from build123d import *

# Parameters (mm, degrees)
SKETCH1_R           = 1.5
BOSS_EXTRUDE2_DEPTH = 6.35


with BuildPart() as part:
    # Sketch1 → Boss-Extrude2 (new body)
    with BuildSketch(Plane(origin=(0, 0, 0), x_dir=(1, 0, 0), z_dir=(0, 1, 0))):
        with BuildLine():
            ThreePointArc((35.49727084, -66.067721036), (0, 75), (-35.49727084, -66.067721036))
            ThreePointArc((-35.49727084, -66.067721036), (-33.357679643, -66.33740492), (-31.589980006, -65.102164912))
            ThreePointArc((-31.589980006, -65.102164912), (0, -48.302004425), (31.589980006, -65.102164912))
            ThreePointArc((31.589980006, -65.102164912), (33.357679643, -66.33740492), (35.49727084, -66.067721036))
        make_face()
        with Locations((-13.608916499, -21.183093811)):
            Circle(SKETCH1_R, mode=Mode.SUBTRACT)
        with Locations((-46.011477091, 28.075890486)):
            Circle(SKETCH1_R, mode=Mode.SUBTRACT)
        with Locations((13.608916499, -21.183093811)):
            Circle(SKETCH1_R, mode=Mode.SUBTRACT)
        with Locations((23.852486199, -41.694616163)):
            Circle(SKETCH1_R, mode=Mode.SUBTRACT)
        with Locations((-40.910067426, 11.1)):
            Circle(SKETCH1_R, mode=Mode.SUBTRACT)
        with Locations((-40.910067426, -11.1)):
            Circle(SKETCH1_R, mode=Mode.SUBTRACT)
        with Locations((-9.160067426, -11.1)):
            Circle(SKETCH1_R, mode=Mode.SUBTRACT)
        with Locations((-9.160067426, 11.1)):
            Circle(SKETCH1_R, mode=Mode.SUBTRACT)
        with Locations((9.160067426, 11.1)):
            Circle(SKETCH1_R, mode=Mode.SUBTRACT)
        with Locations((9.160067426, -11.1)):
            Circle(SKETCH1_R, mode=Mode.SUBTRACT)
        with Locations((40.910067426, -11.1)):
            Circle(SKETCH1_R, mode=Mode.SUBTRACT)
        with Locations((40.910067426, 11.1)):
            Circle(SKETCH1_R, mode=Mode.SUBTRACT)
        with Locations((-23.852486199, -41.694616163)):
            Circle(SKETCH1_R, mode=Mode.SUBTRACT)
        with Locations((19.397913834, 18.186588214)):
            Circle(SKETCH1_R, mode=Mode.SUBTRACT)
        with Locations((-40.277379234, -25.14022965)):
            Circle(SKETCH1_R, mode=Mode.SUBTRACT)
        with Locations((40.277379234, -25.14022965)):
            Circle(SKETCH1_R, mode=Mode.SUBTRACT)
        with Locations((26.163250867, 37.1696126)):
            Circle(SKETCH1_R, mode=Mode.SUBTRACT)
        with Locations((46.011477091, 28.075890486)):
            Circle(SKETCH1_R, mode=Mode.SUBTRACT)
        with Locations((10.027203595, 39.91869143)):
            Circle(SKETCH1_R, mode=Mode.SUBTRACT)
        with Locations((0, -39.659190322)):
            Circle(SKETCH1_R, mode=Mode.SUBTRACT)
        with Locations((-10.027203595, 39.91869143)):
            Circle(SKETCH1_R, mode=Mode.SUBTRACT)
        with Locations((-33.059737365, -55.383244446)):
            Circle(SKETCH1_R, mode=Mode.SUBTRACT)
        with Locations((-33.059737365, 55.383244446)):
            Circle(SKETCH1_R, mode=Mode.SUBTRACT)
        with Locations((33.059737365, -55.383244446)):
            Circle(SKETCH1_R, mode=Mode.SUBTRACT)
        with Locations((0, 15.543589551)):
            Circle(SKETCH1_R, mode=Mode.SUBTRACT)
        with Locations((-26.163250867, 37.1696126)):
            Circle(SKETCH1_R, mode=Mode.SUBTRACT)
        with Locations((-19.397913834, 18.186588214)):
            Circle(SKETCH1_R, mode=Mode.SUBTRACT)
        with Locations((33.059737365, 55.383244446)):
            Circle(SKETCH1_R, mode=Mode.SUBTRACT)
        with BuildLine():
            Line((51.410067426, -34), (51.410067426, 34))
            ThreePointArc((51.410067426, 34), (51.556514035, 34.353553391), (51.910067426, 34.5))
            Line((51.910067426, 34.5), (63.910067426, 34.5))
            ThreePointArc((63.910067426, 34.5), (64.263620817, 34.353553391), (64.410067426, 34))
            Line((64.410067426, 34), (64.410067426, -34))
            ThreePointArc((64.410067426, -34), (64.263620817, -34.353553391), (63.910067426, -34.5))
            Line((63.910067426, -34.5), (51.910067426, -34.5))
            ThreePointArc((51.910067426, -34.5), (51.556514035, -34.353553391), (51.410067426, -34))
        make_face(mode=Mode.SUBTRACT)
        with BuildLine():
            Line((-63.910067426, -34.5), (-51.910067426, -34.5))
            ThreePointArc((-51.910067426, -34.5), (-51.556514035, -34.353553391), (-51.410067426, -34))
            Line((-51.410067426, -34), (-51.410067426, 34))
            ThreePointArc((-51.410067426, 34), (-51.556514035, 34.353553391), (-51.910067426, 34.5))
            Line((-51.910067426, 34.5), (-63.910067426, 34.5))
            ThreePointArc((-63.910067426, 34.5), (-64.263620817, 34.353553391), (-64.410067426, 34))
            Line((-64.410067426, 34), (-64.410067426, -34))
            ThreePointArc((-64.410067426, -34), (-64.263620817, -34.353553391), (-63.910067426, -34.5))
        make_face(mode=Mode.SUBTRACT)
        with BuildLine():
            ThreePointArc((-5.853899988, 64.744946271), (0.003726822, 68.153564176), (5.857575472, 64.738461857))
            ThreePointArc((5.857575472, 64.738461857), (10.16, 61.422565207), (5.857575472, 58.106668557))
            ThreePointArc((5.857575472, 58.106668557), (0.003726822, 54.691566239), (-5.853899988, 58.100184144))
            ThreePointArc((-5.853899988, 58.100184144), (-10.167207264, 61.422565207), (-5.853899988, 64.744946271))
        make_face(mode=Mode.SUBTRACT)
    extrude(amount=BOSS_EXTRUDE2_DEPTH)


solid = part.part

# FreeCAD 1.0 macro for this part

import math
import FreeCAD as App
import Part
import Sketcher
from FreeCAD import Vector

doc = App.newDocument("Part")
body = doc.addObject("PartDesign::Body", "Body")

sketch1 = body.newObject("Sketcher::SketchObject", "Sketch")
sketch1.AttachmentSupport = (doc.getObject("XZ_Plane"), [""])
sketch1.MapMode = "FlatFace"
sketch1.addGeometry([
    Part.ArcOfCircle(Part.Circle(Vector(0, 0, 0), Vector(0, 0, 1), 75), math.radians(118), math.radians(422)),
    Part.ArcOfCircle(Part.Circle(Vector(-34.08, 63.43, 0), Vector(0, 0, 1), 3), math.radians(34), math.radians(118)),
    Part.ArcOfCircle(Part.Circle(Vector(0, 86.4, 0), Vector(0, 0, 1), 38.1), math.radians(-146), math.radians(-34)),
    Part.ArcOfCircle(Part.Circle(Vector(34.08, 63.43, 0), Vector(0, 0, 1), 3), math.radians(62), math.radians(146)),
    Part.Circle(Vector(-33.06, 55.38, 0), Vector(0, 0, 1), 1.5),
    Part.Circle(Vector(-23.85, 41.69, 0), Vector(0, 0, 1), 1.5),
    Part.Circle(Vector(-40.28, 25.14, 0), Vector(0, 0, 1), 1.5),
    Part.Circle(Vector(-40.91, 11.1, 0), Vector(0, 0, 1), 1.5),
    Part.LineSegment(Vector(-51.91, 34.5, 0), Vector(-63.91, 34.5, 0)),
    Part.ArcOfCircle(Part.Circle(Vector(-63.91, 34, 0), Vector(0, 0, 1), 0.5), math.radians(90), math.radians(180)),
    Part.LineSegment(Vector(-64.41, 34, 0), Vector(-64.41, -34, 0)),
    Part.ArcOfCircle(Part.Circle(Vector(-63.91, -34, 0), Vector(0, 0, 1), 0.5), math.radians(180), math.radians(270)),
    Part.LineSegment(Vector(-63.91, -34.5, 0), Vector(-51.91, -34.5, 0)),
    Part.ArcOfCircle(Part.Circle(Vector(-51.91, -34, 0), Vector(0, 0, 1), 0.5), math.radians(-90), math.radians(0)),
    Part.LineSegment(Vector(-51.41, -34, 0), Vector(-51.41, 34, 0)),
    Part.ArcOfCircle(Part.Circle(Vector(-51.91, 34, 0), Vector(0, 0, 1), 0.5), math.radians(0), math.radians(90)),
    Part.Circle(Vector(-13.61, 21.18, 0), Vector(0, 0, 1), 1.5),
    Part.Circle(Vector(-9.16, 11.1, 0), Vector(0, 0, 1), 1.5),
    Part.Circle(Vector(23.85, 41.69, 0), Vector(0, 0, 1), 1.5),
    Part.Circle(Vector(0, 39.66, 0), Vector(0, 0, 1), 1.5),
    Part.Circle(Vector(33.06, 55.38, 0), Vector(0, 0, 1), 1.5),
    Part.Circle(Vector(13.61, 21.18, 0), Vector(0, 0, 1), 1.5),
    Part.Circle(Vector(9.16, 11.1, 0), Vector(0, 0, 1), 1.5),
    Part.Circle(Vector(40.28, 25.14, 0), Vector(0, 0, 1), 1.5),
    Part.Circle(Vector(40.91, 11.1, 0), Vector(0, 0, 1), 1.5),
    Part.ArcOfCircle(Part.Circle(Vector(51.91, 34, 0), Vector(0, 0, 1), 0.5), math.radians(90), math.radians(180)),
    Part.LineSegment(Vector(51.41, 34, 0), Vector(51.41, -34, 0)),
    Part.ArcOfCircle(Part.Circle(Vector(51.91, -34, 0), Vector(0, 0, 1), 0.5), math.radians(180), math.radians(270)),
    Part.LineSegment(Vector(51.91, -34.5, 0), Vector(63.91, -34.5, 0)),
    Part.ArcOfCircle(Part.Circle(Vector(63.91, -34, 0), Vector(0, 0, 1), 0.5), math.radians(-90), math.radians(0)),
    Part.LineSegment(Vector(64.41, -34, 0), Vector(64.41, 34, 0)),
    Part.ArcOfCircle(Part.Circle(Vector(63.91, 34, 0), Vector(0, 0, 1), 0.5), math.radians(0), math.radians(90)),
    Part.LineSegment(Vector(63.91, 34.5, 0), Vector(51.91, 34.5, 0)),
    Part.Circle(Vector(-40.91, -11.1, 0), Vector(0, 0, 1), 1.5),
    Part.Circle(Vector(-46.01, -28.08, 0), Vector(0, 0, 1), 1.5),
    Part.Circle(Vector(-19.4, -18.19, 0), Vector(0, 0, 1), 1.5),
    Part.Circle(Vector(-9.16, -11.1, 0), Vector(0, 0, 1), 1.5),
    Part.Circle(Vector(-33.06, -55.38, 0), Vector(0, 0, 1), 1.5),
    Part.Circle(Vector(-26.16, -37.17, 0), Vector(0, 0, 1), 1.5),
    Part.Circle(Vector(-10.03, -39.92, 0), Vector(0, 0, 1), 1.5),
    Part.ArcOfCircle(Part.Circle(Vector(-6.73, -61.42, 0), Vector(0, 0, 1), 3.44), math.radians(75), math.radians(285)),
    Part.ArcOfCircle(Part.Circle(Vector(0, -61.42, 0), Vector(0, 0, 1), 6.73), math.radians(-150), math.radians(-30)),
    Part.ArcOfCircle(Part.Circle(Vector(6.73, -61.42, 0), Vector(0, 0, 1), 3.43), math.radians(-105), math.radians(105)),
    Part.ArcOfCircle(Part.Circle(Vector(0, -61.42, 0), Vector(0, 0, 1), 6.73), math.radians(30), math.radians(150)),
    Part.Circle(Vector(9.16, -11.1, 0), Vector(0, 0, 1), 1.5),
    Part.Circle(Vector(0, -15.54, 0), Vector(0, 0, 1), 1.5),
    Part.Circle(Vector(19.4, -18.19, 0), Vector(0, 0, 1), 1.5),
    Part.Circle(Vector(40.91, -11.1, 0), Vector(0, 0, 1), 1.5),
    Part.Circle(Vector(46.01, -28.08, 0), Vector(0, 0, 1), 1.5),
    Part.Circle(Vector(10.03, -39.92, 0), Vector(0, 0, 1), 1.5),
    Part.Circle(Vector(26.16, -37.17, 0), Vector(0, 0, 1), 1.5),
    Part.Circle(Vector(33.06, -55.38, 0), Vector(0, 0, 1), 1.5),
], False)
sketch1.addConstraint([
    Sketcher.Constraint("Tangent", 0, 1, 1, 2),
    Sketcher.Constraint("Tangent", 1, 1, 2, 1),
    Sketcher.Constraint("Tangent", 2, 2, 3, 2),
    Sketcher.Constraint("Tangent", 3, 1, 0, 2),
    Sketcher.Constraint("Tangent", 8, 2, 9, 1),
    Sketcher.Constraint("Tangent", 9, 2, 10, 1),
    Sketcher.Constraint("Tangent", 10, 2, 11, 1),
    Sketcher.Constraint("Tangent", 11, 2, 12, 1),
    Sketcher.Constraint("Tangent", 12, 2, 13, 1),
    Sketcher.Constraint("Tangent", 13, 2, 14, 1),
    Sketcher.Constraint("Tangent", 14, 2, 15, 1),
    Sketcher.Constraint("Tangent", 15, 2, 8, 1),
    Sketcher.Constraint("Tangent", 25, 2, 26, 1),
    Sketcher.Constraint("Tangent", 26, 2, 27, 1),
    Sketcher.Constraint("Tangent", 27, 2, 28, 1),
    Sketcher.Constraint("Tangent", 28, 2, 29, 1),
    Sketcher.Constraint("Tangent", 29, 2, 30, 1),
    Sketcher.Constraint("Tangent", 30, 2, 31, 1),
    Sketcher.Constraint("Tangent", 31, 2, 32, 1),
    Sketcher.Constraint("Tangent", 32, 2, 25, 1),
    Sketcher.Constraint("Coincident", 40, 2, 41, 1),
    Sketcher.Constraint("Coincident", 41, 2, 42, 1),
    Sketcher.Constraint("Coincident", 42, 2, 43, 1),
    Sketcher.Constraint("Coincident", 43, 2, 40, 1),
    Sketcher.Constraint("Horizontal", 8),
    Sketcher.Constraint("Vertical", 10),
    Sketcher.Constraint("Horizontal", 12),
    Sketcher.Constraint("Vertical", 14),
    Sketcher.Constraint("Vertical", 26),
    Sketcher.Constraint("Horizontal", 28),
    Sketcher.Constraint("Vertical", 30),
    Sketcher.Constraint("Horizontal", 32),
    Sketcher.Constraint("Coincident", 0, 3, -1, 1),
    Sketcher.Constraint("Coincident", 43, 3, 41, 3),
    Sketcher.Constraint("Equal", 1, 3),
    Sketcher.Constraint("Equal", 4, 5),
    Sketcher.Constraint("Equal", 5, 6),
    Sketcher.Constraint("Equal", 6, 7),
    Sketcher.Constraint("Equal", 9, 11),
    Sketcher.Constraint("Equal", 11, 13),
    Sketcher.Constraint("Equal", 13, 15),
    Sketcher.Constraint("Equal", 7, 16),
    Sketcher.Constraint("Equal", 16, 17),
    Sketcher.Constraint("Equal", 17, 18),
    Sketcher.Constraint("Equal", 18, 19),
    Sketcher.Constraint("Equal", 19, 20),
    Sketcher.Constraint("Equal", 20, 21),
    Sketcher.Constraint("Equal", 21, 22),
    Sketcher.Constraint("Equal", 22, 23),
    Sketcher.Constraint("Equal", 23, 24),
    Sketcher.Constraint("Equal", 15, 25),
    Sketcher.Constraint("Equal", 25, 27),
    Sketcher.Constraint("Equal", 27, 29),
    Sketcher.Constraint("Equal", 29, 31),
    Sketcher.Constraint("Equal", 24, 33),
    Sketcher.Constraint("Equal", 33, 34),
    Sketcher.Constraint("Equal", 34, 35),
    Sketcher.Constraint("Equal", 35, 36),
    Sketcher.Constraint("Equal", 36, 37),
    Sketcher.Constraint("Equal", 37, 38),
    Sketcher.Constraint("Equal", 38, 39),
    Sketcher.Constraint("Equal", 41, 43),
    Sketcher.Constraint("Equal", 39, 44),
    Sketcher.Constraint("Equal", 44, 45),
    Sketcher.Constraint("Equal", 45, 46),
    Sketcher.Constraint("Equal", 46, 47),
    Sketcher.Constraint("Equal", 47, 48),
    Sketcher.Constraint("Equal", 48, 49),
    Sketcher.Constraint("Equal", 49, 50),
    Sketcher.Constraint("Equal", 50, 51),
    Sketcher.Constraint("Symmetric", 13, 3, 25, 3, -1, 1),
    Sketcher.Constraint("Symmetric", 9, 3, 29, 3, -1, 1),
    Sketcher.Constraint("Symmetric", 24, 3, 33, 3, -1, 1),
    Sketcher.Constraint("Symmetric", 22, 3, 36, 3, -1, 1),
    Sketcher.Constraint("Symmetric", 20, 3, 37, 3, -1, 1),
    Sketcher.Constraint("Symmetric", 17, 3, 44, 3, -1, 1),
    Sketcher.Constraint("Symmetric", 7, 3, 47, 3, -1, 1),
    Sketcher.Constraint("Symmetric", 4, 3, 51, 3, -1, 1),
    Sketcher.Constraint("Symmetric", 5, 3, 18, 3, -2),
    Sketcher.Constraint("Symmetric", 4, 3, 20, 3, -2),
    Sketcher.Constraint("Symmetric", 16, 3, 21, 3, -2),
    Sketcher.Constraint("Symmetric", 17, 3, 22, 3, -2),
    Sketcher.Constraint("Symmetric", 6, 3, 23, 3, -2),
    Sketcher.Constraint("Symmetric", 7, 3, 24, 3, -2),
    Sketcher.Constraint("Symmetric", 40, 3, 42, 3, -2),
    Sketcher.Constraint("Symmetric", 35, 3, 46, 3, -2),
    Sketcher.Constraint("Symmetric", 34, 3, 48, 3, -2),
    Sketcher.Constraint("Symmetric", 39, 3, 49, 3, -2),
    Sketcher.Constraint("Symmetric", 38, 3, 50, 3, -2),
    Sketcher.Constraint("PointOnObject", 2, 3, -2),
    Sketcher.Constraint("PointOnObject", 19, 3, -2),
    Sketcher.Constraint("PointOnObject", 41, 3, -2),
    Sketcher.Constraint("PointOnObject", 45, 3, -2),
    Sketcher.Constraint("Horizontal", 7, 3, 17, 3),
    Sketcher.Constraint("Horizontal", 15, 3, 25, 3),
    Sketcher.Constraint("Horizontal", 40, 3, 41, 3),
    Sketcher.Constraint("Diameter", 4, 3.0),
    Sketcher.Constraint("Radius", 0, 75.0),
    Sketcher.Constraint("Radius", 1, 3.0),
    Sketcher.Constraint("Radius", 2, 38.1),
    Sketcher.Constraint("Radius", 9, 0.5),
    Sketcher.Constraint("DistanceX", 8, 2, 8, 1, 12.0),
    Sketcher.Constraint("DistanceY", 10, 2, 10, 1, 68.0),
    Sketcher.Constraint("Radius", 41, 6.731),
    Sketcher.Constraint("Radius", 42, 3.429),
    Sketcher.Constraint("DistanceY", -1, 1, 7, 3, 11.1),
    Sketcher.Constraint("DistanceX", 40, 3, -1, 1, 6.731),
    Sketcher.Constraint("Radius", 40, 3.436207),
    Sketcher.Constraint("DistanceX", 1, 3, -1, 1, 34.07738),
    Sketcher.Constraint("DistanceX", 6, 3, -1, 1, 40.277379),
    Sketcher.Constraint("DistanceY", -1, 1, 6, 3, 25.14023),
    Sketcher.Constraint("DistanceY", -1, 1, 19, 3, 39.65919),
    Sketcher.Constraint("DistanceY", 34, 3, -1, 1, 28.07589),
    Sketcher.Constraint("DistanceY", 35, 3, -1, 1, 18.186588),
    Sketcher.Constraint("DistanceX", 38, 3, -1, 1, 26.163251),
    Sketcher.Constraint("DistanceY", 39, 3, -1, 1, 39.918691),
    Sketcher.Constraint("DistanceY", 45, 3, -1, 1, 15.54359),
    Sketcher.Constraint("DistanceY", 41, 2, -1, 1, 64.738462),
    Sketcher.Constraint("DistanceX", 4, 3, -1, 1, 33.059737),
    Sketcher.Constraint("DistanceY", -1, 1, 4, 3, 55.383244),
    Sketcher.Constraint("DistanceX", 5, 3, -1, 1, 23.852486),
    Sketcher.Constraint("DistanceY", -1, 1, 5, 3, 41.694616),
    Sketcher.Constraint("DistanceX", 7, 3, -1, 1, 40.910067),
    Sketcher.Constraint("DistanceX", 9, 3, -1, 1, 63.910067),
    Sketcher.Constraint("DistanceX", 16, 3, -1, 1, 13.608916),
    Sketcher.Constraint("DistanceY", -1, 1, 16, 3, 21.183094),
    Sketcher.Constraint("DistanceX", 17, 3, -1, 1, 9.160067),
    Sketcher.Constraint("DistanceX", 34, 3, -1, 1, 46.011477),
    Sketcher.Constraint("DistanceX", 35, 3, -1, 1, 19.397914),
    Sketcher.Constraint("DistanceY", 38, 3, -1, 1, 37.169613),
    Sketcher.Constraint("DistanceX", 39, 3, -1, 1, 10.027204),
])
pad1 = body.newObject("PartDesign::Pad", "Pad")
pad1.Profile = sketch1
pad1.Length = 6.35
pad1.Reversed = True

doc.recompute()
